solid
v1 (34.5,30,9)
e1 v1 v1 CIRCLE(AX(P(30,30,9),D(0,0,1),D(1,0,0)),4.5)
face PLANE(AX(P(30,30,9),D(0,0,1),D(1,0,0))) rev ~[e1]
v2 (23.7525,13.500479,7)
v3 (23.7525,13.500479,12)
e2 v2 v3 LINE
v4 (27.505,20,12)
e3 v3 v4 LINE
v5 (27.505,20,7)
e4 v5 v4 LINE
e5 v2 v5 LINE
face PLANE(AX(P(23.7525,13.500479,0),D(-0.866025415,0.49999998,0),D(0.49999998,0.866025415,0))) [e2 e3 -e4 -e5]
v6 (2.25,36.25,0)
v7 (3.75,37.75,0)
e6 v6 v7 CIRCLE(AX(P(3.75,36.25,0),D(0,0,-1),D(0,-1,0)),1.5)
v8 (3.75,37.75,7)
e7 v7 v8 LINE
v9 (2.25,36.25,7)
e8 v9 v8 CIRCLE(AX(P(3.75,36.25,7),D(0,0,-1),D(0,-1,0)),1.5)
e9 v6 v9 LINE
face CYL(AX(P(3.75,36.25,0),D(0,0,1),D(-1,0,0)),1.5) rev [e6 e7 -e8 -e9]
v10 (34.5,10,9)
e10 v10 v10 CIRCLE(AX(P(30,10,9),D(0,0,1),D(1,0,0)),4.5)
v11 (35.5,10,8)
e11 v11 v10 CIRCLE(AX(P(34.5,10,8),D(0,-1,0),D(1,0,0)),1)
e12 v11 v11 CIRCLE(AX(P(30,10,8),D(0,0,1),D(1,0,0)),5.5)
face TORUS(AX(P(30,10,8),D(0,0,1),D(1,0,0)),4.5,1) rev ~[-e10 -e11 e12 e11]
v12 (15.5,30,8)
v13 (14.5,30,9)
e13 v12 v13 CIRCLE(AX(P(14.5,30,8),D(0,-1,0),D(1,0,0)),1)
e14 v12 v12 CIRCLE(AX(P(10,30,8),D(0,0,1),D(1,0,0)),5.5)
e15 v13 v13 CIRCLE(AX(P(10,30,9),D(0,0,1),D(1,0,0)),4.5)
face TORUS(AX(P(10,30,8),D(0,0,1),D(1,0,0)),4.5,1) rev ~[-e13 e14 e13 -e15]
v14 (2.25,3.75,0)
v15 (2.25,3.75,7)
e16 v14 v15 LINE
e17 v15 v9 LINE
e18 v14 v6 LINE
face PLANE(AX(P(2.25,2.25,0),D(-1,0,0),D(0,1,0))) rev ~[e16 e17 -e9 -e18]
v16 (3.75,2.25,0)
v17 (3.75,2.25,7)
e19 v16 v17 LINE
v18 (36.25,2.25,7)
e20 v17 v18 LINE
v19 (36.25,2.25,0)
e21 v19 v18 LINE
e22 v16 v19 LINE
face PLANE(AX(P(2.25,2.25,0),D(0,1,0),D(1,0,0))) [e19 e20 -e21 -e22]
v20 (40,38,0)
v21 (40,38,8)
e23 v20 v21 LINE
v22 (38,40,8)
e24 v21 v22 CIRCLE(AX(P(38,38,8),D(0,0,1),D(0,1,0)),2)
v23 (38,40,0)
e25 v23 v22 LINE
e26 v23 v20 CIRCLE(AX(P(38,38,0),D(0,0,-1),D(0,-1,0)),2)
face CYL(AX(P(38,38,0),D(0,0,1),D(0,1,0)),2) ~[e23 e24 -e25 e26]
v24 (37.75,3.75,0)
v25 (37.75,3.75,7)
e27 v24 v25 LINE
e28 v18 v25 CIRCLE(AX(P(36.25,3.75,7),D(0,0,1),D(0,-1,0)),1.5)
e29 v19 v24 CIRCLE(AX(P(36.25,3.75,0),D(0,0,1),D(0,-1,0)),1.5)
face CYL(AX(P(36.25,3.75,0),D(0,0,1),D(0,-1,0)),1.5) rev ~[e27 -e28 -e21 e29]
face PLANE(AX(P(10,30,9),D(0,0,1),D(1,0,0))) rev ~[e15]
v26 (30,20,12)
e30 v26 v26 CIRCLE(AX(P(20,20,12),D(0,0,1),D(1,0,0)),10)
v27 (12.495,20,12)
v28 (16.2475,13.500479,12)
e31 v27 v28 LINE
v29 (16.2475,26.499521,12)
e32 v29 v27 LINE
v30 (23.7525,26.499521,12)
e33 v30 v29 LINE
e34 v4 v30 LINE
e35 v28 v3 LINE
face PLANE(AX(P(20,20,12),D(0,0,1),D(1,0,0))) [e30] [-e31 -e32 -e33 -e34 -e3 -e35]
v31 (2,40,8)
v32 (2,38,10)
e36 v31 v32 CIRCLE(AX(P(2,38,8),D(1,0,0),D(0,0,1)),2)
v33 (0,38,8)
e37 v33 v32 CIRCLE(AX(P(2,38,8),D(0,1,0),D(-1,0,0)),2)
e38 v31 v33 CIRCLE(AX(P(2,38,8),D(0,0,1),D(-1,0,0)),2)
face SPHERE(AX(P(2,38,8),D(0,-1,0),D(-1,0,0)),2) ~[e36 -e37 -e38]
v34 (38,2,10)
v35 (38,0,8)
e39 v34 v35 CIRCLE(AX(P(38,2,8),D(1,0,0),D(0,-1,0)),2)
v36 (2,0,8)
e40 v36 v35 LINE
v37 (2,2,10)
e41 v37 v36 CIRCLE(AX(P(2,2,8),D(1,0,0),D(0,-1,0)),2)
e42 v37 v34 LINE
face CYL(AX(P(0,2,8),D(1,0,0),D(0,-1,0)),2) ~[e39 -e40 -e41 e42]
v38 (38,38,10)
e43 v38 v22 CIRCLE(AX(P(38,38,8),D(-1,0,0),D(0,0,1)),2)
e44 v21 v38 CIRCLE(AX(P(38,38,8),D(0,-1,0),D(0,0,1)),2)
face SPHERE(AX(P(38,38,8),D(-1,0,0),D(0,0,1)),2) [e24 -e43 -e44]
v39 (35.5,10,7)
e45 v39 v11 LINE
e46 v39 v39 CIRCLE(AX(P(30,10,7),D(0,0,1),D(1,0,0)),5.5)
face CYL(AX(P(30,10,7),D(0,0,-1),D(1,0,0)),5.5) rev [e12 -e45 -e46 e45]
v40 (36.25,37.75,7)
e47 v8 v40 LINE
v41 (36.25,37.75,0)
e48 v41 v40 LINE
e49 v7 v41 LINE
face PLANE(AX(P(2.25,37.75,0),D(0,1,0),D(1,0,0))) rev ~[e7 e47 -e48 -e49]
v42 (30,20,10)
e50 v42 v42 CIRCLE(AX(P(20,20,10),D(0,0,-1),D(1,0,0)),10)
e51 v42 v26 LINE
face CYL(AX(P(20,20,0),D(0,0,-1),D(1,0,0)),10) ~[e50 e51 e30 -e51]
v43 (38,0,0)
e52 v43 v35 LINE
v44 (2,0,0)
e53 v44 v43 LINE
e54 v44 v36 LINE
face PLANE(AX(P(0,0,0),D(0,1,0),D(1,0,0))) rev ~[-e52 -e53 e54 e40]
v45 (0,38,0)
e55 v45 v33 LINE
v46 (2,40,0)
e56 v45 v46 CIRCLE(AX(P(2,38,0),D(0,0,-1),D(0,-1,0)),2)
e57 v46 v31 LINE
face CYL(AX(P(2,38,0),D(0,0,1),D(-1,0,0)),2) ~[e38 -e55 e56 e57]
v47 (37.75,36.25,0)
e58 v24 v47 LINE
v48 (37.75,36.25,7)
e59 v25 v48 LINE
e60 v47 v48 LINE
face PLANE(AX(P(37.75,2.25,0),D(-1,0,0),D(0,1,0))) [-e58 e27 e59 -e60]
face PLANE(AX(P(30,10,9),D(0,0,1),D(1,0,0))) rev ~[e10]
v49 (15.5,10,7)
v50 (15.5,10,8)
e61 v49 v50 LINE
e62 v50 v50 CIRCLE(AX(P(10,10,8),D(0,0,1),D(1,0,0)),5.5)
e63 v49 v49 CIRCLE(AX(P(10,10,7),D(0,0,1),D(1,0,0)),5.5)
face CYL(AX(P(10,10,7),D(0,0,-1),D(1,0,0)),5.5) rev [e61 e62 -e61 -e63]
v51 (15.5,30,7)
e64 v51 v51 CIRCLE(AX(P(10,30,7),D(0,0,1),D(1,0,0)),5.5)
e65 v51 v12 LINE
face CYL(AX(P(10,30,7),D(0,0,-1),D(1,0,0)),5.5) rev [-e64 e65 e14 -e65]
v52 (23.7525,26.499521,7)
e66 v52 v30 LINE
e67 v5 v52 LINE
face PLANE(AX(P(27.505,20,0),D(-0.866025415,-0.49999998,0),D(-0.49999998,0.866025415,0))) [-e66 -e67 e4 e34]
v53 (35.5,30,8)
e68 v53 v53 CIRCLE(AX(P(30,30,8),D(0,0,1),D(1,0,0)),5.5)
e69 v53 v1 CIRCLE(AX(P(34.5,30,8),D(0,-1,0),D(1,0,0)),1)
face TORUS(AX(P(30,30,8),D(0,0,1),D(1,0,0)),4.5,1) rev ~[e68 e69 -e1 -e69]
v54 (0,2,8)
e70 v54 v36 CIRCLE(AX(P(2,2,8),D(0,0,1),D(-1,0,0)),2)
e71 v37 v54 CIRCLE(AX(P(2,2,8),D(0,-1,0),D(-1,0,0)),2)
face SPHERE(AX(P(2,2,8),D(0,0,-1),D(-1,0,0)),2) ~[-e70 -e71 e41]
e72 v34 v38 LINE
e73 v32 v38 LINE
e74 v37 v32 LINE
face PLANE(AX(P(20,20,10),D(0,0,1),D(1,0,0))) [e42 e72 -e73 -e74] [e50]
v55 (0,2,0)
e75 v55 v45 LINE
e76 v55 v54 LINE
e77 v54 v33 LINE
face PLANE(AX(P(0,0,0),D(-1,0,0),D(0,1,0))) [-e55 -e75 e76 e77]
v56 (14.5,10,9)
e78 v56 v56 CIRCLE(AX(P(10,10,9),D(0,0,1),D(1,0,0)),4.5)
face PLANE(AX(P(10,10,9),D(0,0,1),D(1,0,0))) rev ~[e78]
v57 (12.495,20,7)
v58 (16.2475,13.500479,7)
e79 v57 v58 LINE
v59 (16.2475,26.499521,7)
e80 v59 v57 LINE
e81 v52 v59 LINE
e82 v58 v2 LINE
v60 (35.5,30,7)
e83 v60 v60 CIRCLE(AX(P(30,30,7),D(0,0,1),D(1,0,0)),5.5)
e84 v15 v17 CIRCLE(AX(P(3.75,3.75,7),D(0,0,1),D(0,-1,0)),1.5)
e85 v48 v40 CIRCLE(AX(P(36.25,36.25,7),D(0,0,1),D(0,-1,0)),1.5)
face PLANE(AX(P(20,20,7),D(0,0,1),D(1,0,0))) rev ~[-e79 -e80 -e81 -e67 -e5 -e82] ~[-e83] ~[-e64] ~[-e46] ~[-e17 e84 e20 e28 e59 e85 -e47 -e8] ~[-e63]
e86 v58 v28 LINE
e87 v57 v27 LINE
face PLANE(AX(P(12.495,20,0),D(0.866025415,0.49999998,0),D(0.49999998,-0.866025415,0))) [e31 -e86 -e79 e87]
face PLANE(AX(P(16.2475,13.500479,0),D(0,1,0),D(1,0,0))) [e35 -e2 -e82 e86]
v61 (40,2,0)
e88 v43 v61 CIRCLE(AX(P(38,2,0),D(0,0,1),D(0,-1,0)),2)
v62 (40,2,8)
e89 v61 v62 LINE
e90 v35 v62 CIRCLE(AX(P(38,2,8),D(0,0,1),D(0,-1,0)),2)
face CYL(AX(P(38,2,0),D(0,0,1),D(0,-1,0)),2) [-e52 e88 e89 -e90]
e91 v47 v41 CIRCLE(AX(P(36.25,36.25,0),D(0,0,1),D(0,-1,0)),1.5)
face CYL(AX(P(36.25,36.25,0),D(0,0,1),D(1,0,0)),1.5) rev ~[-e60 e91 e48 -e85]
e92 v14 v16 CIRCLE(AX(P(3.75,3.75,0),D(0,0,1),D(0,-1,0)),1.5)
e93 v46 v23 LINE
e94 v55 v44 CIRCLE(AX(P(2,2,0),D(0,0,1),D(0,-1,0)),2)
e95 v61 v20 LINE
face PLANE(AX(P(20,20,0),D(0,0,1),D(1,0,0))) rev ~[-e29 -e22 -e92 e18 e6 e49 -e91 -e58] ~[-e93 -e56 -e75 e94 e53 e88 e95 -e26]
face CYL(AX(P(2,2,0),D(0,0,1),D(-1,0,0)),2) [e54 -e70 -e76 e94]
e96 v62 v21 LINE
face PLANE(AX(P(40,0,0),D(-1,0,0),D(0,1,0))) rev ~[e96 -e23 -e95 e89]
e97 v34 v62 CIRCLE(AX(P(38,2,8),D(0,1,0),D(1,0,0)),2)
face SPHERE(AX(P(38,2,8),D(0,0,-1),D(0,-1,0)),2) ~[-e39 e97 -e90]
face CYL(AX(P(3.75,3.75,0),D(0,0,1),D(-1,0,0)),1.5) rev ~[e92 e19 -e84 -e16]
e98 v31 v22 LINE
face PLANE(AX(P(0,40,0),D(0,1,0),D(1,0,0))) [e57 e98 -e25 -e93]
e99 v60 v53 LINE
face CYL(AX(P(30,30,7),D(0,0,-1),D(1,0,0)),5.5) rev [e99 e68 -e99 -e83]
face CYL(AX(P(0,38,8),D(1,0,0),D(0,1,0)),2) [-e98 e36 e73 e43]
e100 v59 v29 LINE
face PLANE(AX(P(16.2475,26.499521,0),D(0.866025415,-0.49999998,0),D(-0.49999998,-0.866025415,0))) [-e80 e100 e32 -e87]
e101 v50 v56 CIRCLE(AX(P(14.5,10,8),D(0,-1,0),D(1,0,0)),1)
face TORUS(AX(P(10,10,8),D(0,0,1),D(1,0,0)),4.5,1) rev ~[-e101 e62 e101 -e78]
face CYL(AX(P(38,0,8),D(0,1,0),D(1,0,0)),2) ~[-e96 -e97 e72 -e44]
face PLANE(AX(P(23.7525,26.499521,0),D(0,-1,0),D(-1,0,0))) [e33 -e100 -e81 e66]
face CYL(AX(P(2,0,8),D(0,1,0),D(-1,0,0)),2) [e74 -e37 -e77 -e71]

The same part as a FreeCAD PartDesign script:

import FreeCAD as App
import Part
import Sketcher
Q = App.Units.Quantity


def edges_at(feature, points):
    """Names of the edges that pass closest to the given points."""
    edges = feature.Shape.Edges
    near = lambda p: min(range(len(edges)), key=lambda i: edges[i].distToShape(Part.Vertex(*p))[0])
    return sorted({f"Edge{near(p) + 1}" for p in points})

doc = App.newDocument("Part")
body = doc.addObject("PartDesign::Body", "Body")

sketch1 = doc.addObject("Sketcher::SketchObject", "Sketch")
body.addObject(sketch1)
sketch1.AttachmentSupport = (doc.XY_Plane, [""])
sketch1.MapMode = "FlatFace"
sketch1.addGeometry(Part.Circle(App.Vector(0, 0, 0), App.Vector(0, 0, 1), 6), False)
sketch1.addConstraint(Sketcher.Constraint("Coincident", 0, 3, -1, 1))
sketch1.addConstraint(Sketcher.Constraint("Diameter", 0, 11.0))
pad1 = doc.addObject("PartDesign::Pad", "Pad")
body.addObject(pad1)
pad1.Profile = sketch1
pad1.Length = 2
doc.recompute()

fillet = doc.addObject("PartDesign::Fillet", "Fillet")
body.addObject(fillet)
fillet.Base = (pad1, edges_at(pad1, [(-5.5, 0, 2)]))
fillet.Radius = 1
body2 = doc.addObject("PartDesign::Body", "Body001")
doc.recompute()

body.Placement = App.Placement(App.Vector(10, 30, 7), App.Rotation(App.Vector(0, 0, 1), 0))
boolean = doc.addObject("PartDesign::Boolean", "Boolean")
body2.addObject(boolean)
boolean.Type = "Fuse"
boolean.addObjects([body])
body3 = doc.addObject("PartDesign::Body", "Body002")

sketch2 = doc.addObject("Sketcher::SketchObject", "Sketch001")
body3.addObject(sketch2)
sketch2.AttachmentSupport = (doc.getObject("XY_Plane002"), [""])
sketch2.MapMode = "FlatFace"
sketch2.addGeometry(Part.Circle(App.Vector(0, 0, 0), App.Vector(0, 0, 1), 6), False)
sketch2.addConstraint(Sketcher.Constraint("Coincident", 0, 3, -1, 1))
sketch2.addConstraint(Sketcher.Constraint("Diameter", 0, 11.0))
pad2 = doc.addObject("PartDesign::Pad", "Pad001")
body3.addObject(pad2)
pad2.Profile = sketch2
pad2.Length = 2
doc.recompute()

fillet2 = doc.addObject("PartDesign::Fillet", "Fillet001")
body3.addObject(fillet2)
fillet2.Base = (pad2, edges_at(pad2, [(-5.5, 0, 2)]))
fillet2.Radius = 1
body4 = doc.addObject("PartDesign::Body", "Body003")
doc.recompute()

body3.Placement = App.Placement(App.Vector(30, 30, 7), App.Rotation(App.Vector(0, 0, 1), 0))
boolean2 = doc.addObject("PartDesign::Boolean", "Boolean001")
body4.addObject(boolean2)
boolean2.Type = "Fuse"
boolean2.addObjects([body3])
body5 = doc.addObject("PartDesign::Body", "Body004")

sketch3 = doc.addObject("Sketcher::SketchObject", "Sketch002")
body5.addObject(sketch3)
sketch3.AttachmentSupport = (doc.getObject("XY_Plane004"), [""])
sketch3.MapMode = "FlatFace"
sketch3.addGeometry(Part.Circle(App.Vector(0, 0, 0), App.Vector(0, 0, 1), 6), False)
sketch3.addConstraint(Sketcher.Constraint("Coincident", 0, 3, -1, 1))
sketch3.addConstraint(Sketcher.Constraint("Diameter", 0, 11.0))
pad3 = doc.addObject("PartDesign::Pad", "Pad002")
body5.addObject(pad3)
pad3.Profile = sketch3
pad3.Length = 2
doc.recompute()

fillet3 = doc.addObject("PartDesign::Fillet", "Fillet002")
body5.addObject(fillet3)
fillet3.Base = (pad3, edges_at(pad3, [(-5.5, 0, 2)]))
fillet3.Radius = 1
body6 = doc.addObject("PartDesign::Body", "Body005")
doc.recompute()

body5.Placement = App.Placement(App.Vector(10, 10, 7), App.Rotation(App.Vector(0, 0, 1), 0))
boolean3 = doc.addObject("PartDesign::Boolean", "Boolean002")
body6.addObject(boolean3)
boolean3.Type = "Fuse"
boolean3.addObjects([body5])
body7 = doc.addObject("PartDesign::Body", "Body006")

sketch4 = doc.addObject("Sketcher::SketchObject", "Sketch003")
body7.addObject(sketch4)
sketch4.AttachmentSupport = (doc.getObject("XY_Plane006"), [""])
sketch4.MapMode = "FlatFace"
sketch4.addGeometry(Part.Circle(App.Vector(0, 0, 0), App.Vector(0, 0, 1), 6), False)
sketch4.addConstraint(Sketcher.Constraint("Coincident", 0, 3, -1, 1))
sketch4.addConstraint(Sketcher.Constraint("Diameter", 0, 11.0))
pad4 = doc.addObject("PartDesign::Pad", "Pad003")
body7.addObject(pad4)
pad4.Profile = sketch4
pad4.Length = 2
doc.recompute()

fillet4 = doc.addObject("PartDesign::Fillet", "Fillet003")
body7.addObject(fillet4)
fillet4.Base = (pad4, edges_at(pad4, [(-5.5, 0, 2)]))
fillet4.Radius = 1
body8 = doc.addObject("PartDesign::Body", "Body007")
doc.recompute()

body7.Placement = App.Placement(App.Vector(30, 10, 7), App.Rotation(App.Vector(0, 0, 1), 0))
boolean4 = doc.addObject("PartDesign::Boolean", "Boolean003")
body8.addObject(boolean4)
boolean4.Type = "Fuse"
boolean4.addObjects([body7])
body9 = doc.addObject("PartDesign::Body", "Body008")

sketch5 = doc.addObject("Sketcher::SketchObject", "Sketch004")
body9.addObject(sketch5)
sketch5.AttachmentSupport = (doc.getObject("XY_Plane008"), [""])
sketch5.MapMode = "FlatFace"
sketch5.addGeometry(Part.LineSegment(App.Vector(2, 38, 0), App.Vector(2, 2, 0)), False)
sketch5.addGeometry(Part.LineSegment(App.Vector(2, 2, 0), App.Vector(38, 2, 0)), False)
sketch5.addGeometry(Part.LineSegment(App.Vector(38, 2, 0), App.Vector(38, 38, 0)), False)
sketch5.addGeometry(Part.LineSegment(App.Vector(38, 38, 0), App.Vector(2, 38, 0)), False)
sketch5.addConstraint(Sketcher.Constraint("Coincident", 0, 2, 1, 1))
sketch5.addConstraint(Sketcher.Constraint("Coincident", 1, 2, 2, 1))
sketch5.addConstraint(Sketcher.Constraint("Coincident", 2, 2, 3, 1))
sketch5.addConstraint(Sketcher.Constraint("Coincident", 3, 2, 0, 1))
sketch5.addConstraint(Sketcher.Constraint("Vertical", 0))
sketch5.addConstraint(Sketcher.Constraint("Horizontal", 1))
sketch5.addConstraint(Sketcher.Constraint("Vertical", 2))
sketch5.addConstraint(Sketcher.Constraint("Horizontal", 3))
sketch5.addConstraint(Sketcher.Constraint("Equal", 3, 0))
sketch5.addConstraint(Sketcher.Constraint("DistanceX", 1, 1, 1, 2, 35.5))
sketch5.addConstraint(Sketcher.Constraint("DistanceX", -1, 1, 0, 2, 2.25))
sketch5.addConstraint(Sketcher.Constraint("DistanceY", -1, 1, 0, 2, 2.25))
pad5 = doc.addObject("PartDesign::Pad", "Pad004")
body9.addObject(pad5)
pad5.Profile = sketch5
pad5.Length = 7
doc.recompute()

fillet5 = doc.addObject("PartDesign::Fillet", "Fillet004")
body9.addObject(fillet5)
fillet5.Base = (pad5, edges_at(pad5, [
    (2.25, 2.25, 3.5),
    (2.25, 37.75, 3.5),
    (37.75, 2.25, 3.5),
    (37.75, 37.75, 3.5),
]))
fillet5.Radius = 1.5
body10 = doc.addObject("PartDesign::Body", "Body009")

sketch6 = doc.addObject("Sketcher::SketchObject", "Sketch005")
body10.addObject(sketch6)
sketch6.AttachmentSupport = (doc.getObject("XY_Plane009"), [""])
sketch6.MapMode = "FlatFace"
sketch6.addGeometry(Part.LineSegment(App.Vector(28, 20, 0), App.Vector(24, 26, 0)), False)
sketch6.addGeometry(Part.LineSegment(App.Vector(24, 26, 0), App.Vector(16, 26, 0)), False)
sketch6.addGeometry(Part.LineSegment(App.Vector(16, 26, 0), App.Vector(12, 20, 0)), False)
sketch6.addGeometry(Part.LineSegment(App.Vector(12, 20, 0), App.Vector(16, 14, 0)), False)
sketch6.addGeometry(Part.LineSegment(App.Vector(16, 14, 0), App.Vector(24, 14, 0)), False)
sketch6.addGeometry(Part.LineSegment(App.Vector(24, 14, 0), App.Vector(28, 20, 0)), False)
sketch6.addConstraint(Sketcher.Constraint("Coincident", 0, 2, 1, 1))
sketch6.addConstraint(Sketcher.Constraint("Coincident", 1, 2, 2, 1))
sketch6.addConstraint(Sketcher.Constraint("Coincident", 2, 2, 3, 1))
sketch6.addConstraint(Sketcher.Constraint("Coincident", 3, 2, 4, 1))
sketch6.addConstraint(Sketcher.Constraint("Coincident", 4, 2, 5, 1))
sketch6.addConstraint(Sketcher.Constraint("Coincident", 5, 2, 0, 1))
sketch6.addConstraint(Sketcher.Constraint("Horizontal", 1))
sketch6.addConstraint(Sketcher.Constraint("Horizontal", 4))
sketch6.addConstraint(Sketcher.Constraint("Parallel", 0, 3))
sketch6.addConstraint(Sketcher.Constraint("Parallel", 2, 5))
sketch6.addConstraint(Sketcher.Constraint("Horizontal", 2, 2, 5, 2))
sketch6.addConstraint(Sketcher.Constraint("Vertical", 1, 2, 3, 2))
sketch6.addConstraint(Sketcher.Constraint("Vertical", 0, 2, 4, 2))
sketch6.addConstraint(Sketcher.Constraint("Angle", 0, Q("119.999999 deg")))
sketch6.addConstraint(Sketcher.Constraint("DistanceY", -1, 1, 2, 2, 20.0))
sketch6.addConstraint(Sketcher.Constraint("DistanceX", 1, 2, 1, 1, 7.505))
sketch6.addConstraint(Sketcher.Constraint("DistanceX", 2, 2, 5, 2, 15.01))
sketch6.addConstraint(Sketcher.Constraint("DistanceX", -1, 1, 2, 2, 12.495))
pad6 = doc.addObject("PartDesign::Pad", "Pad005")
body10.addObject(pad6)
pad6.Profile = sketch6
pad6.Length = 12
body11 = doc.addObject("PartDesign::Body", "Body010")

sketch7 = doc.addObject("Sketcher::SketchObject", "Sketch006")
body11.addObject(sketch7)
sketch7.AttachmentSupport = (doc.getObject("XY_Plane010"), [""])
sketch7.MapMode = "FlatFace"
sketch7.addGeometry(Part.Circle(App.Vector(20, 20, 0), App.Vector(0, 0, 1), 10), False)
sketch7.addConstraint(Sketcher.Constraint("Diameter", 0, 20.0))
sketch7.addConstraint(Sketcher.Constraint("DistanceX", -1, 1, 0, 3, 20.0))
sketch7.addConstraint(Sketcher.Constraint("DistanceY", -1, 1, 0, 3, 20.0))
pad7 = doc.addObject("PartDesign::Pad", "Pad006")
body11.addObject(pad7)
pad7.Profile = sketch7
pad7.Length = 12
body12 = doc.addObject("PartDesign::Body", "Body011")

sketch8 = doc.addObject("Sketcher::SketchObject", "Sketch007")
body12.addObject(sketch8)
sketch8.AttachmentSupport = (doc.getObject("XY_Plane011"), [""])
sketch8.MapMode = "FlatFace"
sketch8.addGeometry(Part.LineSegment(App.Vector(0, 40, 0), App.Vector(0, 0, 0)), False)
sketch8.addGeometry(Part.LineSegment(App.Vector(0, 0, 0), App.Vector(40, 0, 0)), False)
sketch8.addGeometry(Part.LineSegment(App.Vector(40, 0, 0), App.Vector(40, 40, 0)), False)
sketch8.addGeometry(Part.LineSegment(App.Vector(40, 40, 0), App.Vector(0, 40, 0)), False)
sketch8.addConstraint(Sketcher.Constraint("Coincident", 0, 2, 1, 1))
sketch8.addConstraint(Sketcher.Constraint("Coincident", 1, 2, 2, 1))
sketch8.addConstraint(Sketcher.Constraint("Coincident", 2, 2, 3, 1))
sketch8.addConstraint(Sketcher.Constraint("Coincident", 3, 2, 0, 1))
sketch8.addConstraint(Sketcher.Constraint("Vertical", 0))
sketch8.addConstraint(Sketcher.Constraint("Horizontal", 1))
sketch8.addConstraint(Sketcher.Constraint("Vertical", 2))
sketch8.addConstraint(Sketcher.Constraint("Horizontal", 3))
sketch8.addConstraint(Sketcher.Constraint("Coincident", 0, 2, -1, 1))
sketch8.addConstraint(Sketcher.Constraint("Equal", 3, 0))
sketch8.addConstraint(Sketcher.Constraint("DistanceX", 1, 1, 1, 2, 40.0))
pad8 = doc.addObject("PartDesign::Pad", "Pad007")
body12.addObject(pad8)
pad8.Profile = sketch8
pad8.Length = 10
doc.recompute()

boolean5 = doc.addObject("PartDesign::Boolean", "Boolean004")
body12.addObject(boolean5)
boolean5.Type = "Fuse"
boolean5.addObjects([body11])
doc.recompute()

boolean6 = doc.addObject("PartDesign::Boolean", "Boolean005")
body12.addObject(boolean6)
boolean6.Type = "Cut"
boolean6.addObjects([body10])
doc.recompute()

fillet6 = doc.addObject("PartDesign::Fillet", "Fillet005")
body12.addObject(fillet6)
fillet6.Base = (boolean6, edges_at(boolean6, [
    (0, 0, 5),
    (0, 20, 10),
    (0, 40, 5),
    (40, 0, 5),
    (20, 0, 10),
    (20, 40, 10),
    (40, 20, 10),
    (40, 40, 5),
]))
fillet6.Radius = 2
doc.recompute()

boolean7 = doc.addObject("PartDesign::Boolean", "Boolean006")
body12.addObject(boolean7)
boolean7.Type = "Cut"
boolean7.addObjects([body9])
doc.recompute()

boolean8 = doc.addObject("PartDesign::Boolean", "Boolean007")
body12.addObject(boolean8)
boolean8.Type = "Cut"
boolean8.addObjects([body8])
doc.recompute()

boolean9 = doc.addObject("PartDesign::Boolean", "Boolean008")
body12.addObject(boolean9)
boolean9.Type = "Cut"
boolean9.addObjects([body6])
doc.recompute()

boolean10 = doc.addObject("PartDesign::Boolean", "Boolean009")
body12.addObject(boolean10)
boolean10.Type = "Cut"
boolean10.addObjects([body4])
doc.recompute()

boolean11 = doc.addObject("PartDesign::Boolean", "Boolean010")
body12.addObject(boolean11)
boolean11.Type = "Cut"
boolean11.addObjects([body2])

doc.recompute()
